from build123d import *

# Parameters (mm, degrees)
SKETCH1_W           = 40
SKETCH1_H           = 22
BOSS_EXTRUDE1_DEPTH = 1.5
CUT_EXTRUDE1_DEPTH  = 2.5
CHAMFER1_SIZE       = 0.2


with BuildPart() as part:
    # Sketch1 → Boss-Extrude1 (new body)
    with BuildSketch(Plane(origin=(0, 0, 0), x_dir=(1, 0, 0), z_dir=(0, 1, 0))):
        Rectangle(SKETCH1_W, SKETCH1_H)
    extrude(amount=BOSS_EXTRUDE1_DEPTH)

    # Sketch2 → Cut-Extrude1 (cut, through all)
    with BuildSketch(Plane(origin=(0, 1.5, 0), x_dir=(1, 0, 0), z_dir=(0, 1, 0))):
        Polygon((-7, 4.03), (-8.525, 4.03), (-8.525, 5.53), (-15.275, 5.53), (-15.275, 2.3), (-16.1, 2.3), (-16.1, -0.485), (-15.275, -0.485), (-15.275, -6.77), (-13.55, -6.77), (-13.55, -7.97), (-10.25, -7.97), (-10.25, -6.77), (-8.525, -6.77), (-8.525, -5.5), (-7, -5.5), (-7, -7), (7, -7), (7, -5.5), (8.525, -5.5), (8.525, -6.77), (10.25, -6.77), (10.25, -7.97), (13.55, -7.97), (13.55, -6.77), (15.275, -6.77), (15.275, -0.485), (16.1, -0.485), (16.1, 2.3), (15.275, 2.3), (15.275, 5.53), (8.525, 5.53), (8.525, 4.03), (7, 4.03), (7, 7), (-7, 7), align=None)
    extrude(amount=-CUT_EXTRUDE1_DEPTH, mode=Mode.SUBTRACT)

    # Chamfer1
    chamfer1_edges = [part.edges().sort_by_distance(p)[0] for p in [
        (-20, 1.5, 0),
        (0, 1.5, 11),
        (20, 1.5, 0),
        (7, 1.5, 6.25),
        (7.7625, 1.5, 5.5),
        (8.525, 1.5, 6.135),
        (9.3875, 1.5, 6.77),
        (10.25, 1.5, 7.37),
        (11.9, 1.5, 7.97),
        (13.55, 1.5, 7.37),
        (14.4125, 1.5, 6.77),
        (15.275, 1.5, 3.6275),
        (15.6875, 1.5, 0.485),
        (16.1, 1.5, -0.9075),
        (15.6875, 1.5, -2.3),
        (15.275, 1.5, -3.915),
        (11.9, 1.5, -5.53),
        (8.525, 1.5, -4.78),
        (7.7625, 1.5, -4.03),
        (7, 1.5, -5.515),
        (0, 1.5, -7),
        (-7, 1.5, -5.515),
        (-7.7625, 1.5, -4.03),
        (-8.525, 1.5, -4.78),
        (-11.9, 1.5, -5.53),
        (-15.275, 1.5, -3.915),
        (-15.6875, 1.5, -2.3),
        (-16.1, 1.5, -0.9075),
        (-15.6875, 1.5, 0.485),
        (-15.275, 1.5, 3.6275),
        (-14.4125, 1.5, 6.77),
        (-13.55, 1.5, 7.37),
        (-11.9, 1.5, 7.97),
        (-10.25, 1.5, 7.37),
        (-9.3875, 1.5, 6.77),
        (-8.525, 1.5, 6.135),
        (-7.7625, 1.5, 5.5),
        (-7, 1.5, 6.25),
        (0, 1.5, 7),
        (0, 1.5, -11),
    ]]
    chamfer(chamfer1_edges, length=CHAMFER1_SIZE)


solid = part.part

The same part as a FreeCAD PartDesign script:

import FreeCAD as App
import Part
import Sketcher
Q = App.Units.Quantity


def edges_at(feature, points):
    """Names of the edges that pass closest to the given points."""
    edges = feature.Shape.Edges
    near = lambda p: min(range(len(edges)), key=lambda i: edges[i].distToShape(Part.Vertex(*p))[0])
    return sorted({f"Edge{near(p) + 1}" for p in points})

doc = App.newDocument("Part")
body = doc.addObject("PartDesign::Body", "Body")

sketch1 = doc.addObject("Sketcher::SketchObject", "Sketch")
body.addObject(sketch1)
sketch1.AttachmentSupport = (doc.XZ_Plane, [""])
sketch1.MapMode = "FlatFace"
sketch1.addGeometry([
    Part.LineSegment(App.Vector(-20, -11, 0), App.Vector(-20, 11, 0)),
    Part.LineSegment(App.Vector(-20, 11, 0), App.Vector(20, 11, 0)),
    Part.LineSegment(App.Vector(20, 11, 0), App.Vector(20, -11, 0)),
    Part.LineSegment(App.Vector(20, -11, 0), App.Vector(-20, -11, 0)),
], False)
sketch1.addConstraint([
    Sketcher.Constraint("Coincident", 0, 2, 1, 1),
    Sketcher.Constraint("Coincident", 1, 2, 2, 1),
    Sketcher.Constraint("Coincident", 2, 2, 3, 1),
    Sketcher.Constraint("Coincident", 3, 2, 0, 1),
    Sketcher.Constraint("Vertical", 0),
    Sketcher.Constraint("Horizontal", 1),
    Sketcher.Constraint("Vertical", 2),
    Sketcher.Constraint("Horizontal", 3),
    Sketcher.Constraint("Symmetric", 0, 2, 2, 2, -1, 1),
    Sketcher.Constraint("DistanceX", 1, 1, 1, 2, Q("40 mm")),
    Sketcher.Constraint("DistanceY", 0, 1, 0, 2, Q("22 mm")),
])
pad1 = doc.addObject("PartDesign::Pad", "Pad")
body.addObject(pad1)
pad1.Profile = sketch1
pad1.Length = 1.5
pad1.Reversed = True

sketch2 = doc.addObject("Sketcher::SketchObject", "Sketch001")
body.addObject(sketch2)
sketch2.AttachmentSupport = (doc.XZ_Plane, [""])
sketch2.MapMode = "FlatFace"
sketch2.AttachmentOffset = App.Placement(App.Vector(0, 0, -1.5), App.Rotation())
sketch2.addGeometry([
    Part.LineSegment(App.Vector(-7, -4, 0), App.Vector(-8.5, -4, 0)),
    Part.LineSegment(App.Vector(-8.5, -4, 0), App.Vector(-8.5, -5.5, 0)),
    Part.LineSegment(App.Vector(-8.5, -5.5, 0), App.Vector(-15.3, -5.5, 0)),
    Part.LineSegment(App.Vector(-15.3, -5.5, 0), App.Vector(-15.3, -2.3, 0)),
    Part.LineSegment(App.Vector(-15.3, -2.3, 0), App.Vector(-16.1, -2.3, 0)),
    Part.LineSegment(App.Vector(-16.1, -2.3, 0), App.Vector(-16.1, 0.5, 0)),
    Part.LineSegment(App.Vector(-16.1, 0.5, 0), App.Vector(-15.3, 0.5, 0)),
    Part.LineSegment(App.Vector(-15.3, 0.5, 0), App.Vector(-15.3, 6.8, 0)),
    Part.LineSegment(App.Vector(-15.3, 6.8, 0), App.Vector(-13.6, 6.8, 0)),
    Part.LineSegment(App.Vector(-13.6, 6.8, 0), App.Vector(-13.6, 8, 0)),
    Part.LineSegment(App.Vector(-13.6, 8, 0), App.Vector(-10.2, 8, 0)),
    Part.LineSegment(App.Vector(-10.2, 8, 0), App.Vector(-10.2, 6.8, 0)),
    Part.LineSegment(App.Vector(-10.2, 6.8, 0), App.Vector(-8.5, 6.8, 0)),
    Part.LineSegment(App.Vector(-8.5, 6.8, 0), App.Vector(-8.5, 5.5, 0)),
    Part.LineSegment(App.Vector(-8.5, 5.5, 0), App.Vector(-7, 5.5, 0)),
    Part.LineSegment(App.Vector(-7, 5.5, 0), App.Vector(-7, 7, 0)),
    Part.LineSegment(App.Vector(-7, 7, 0), App.Vector(7, 7, 0)),
    Part.LineSegment(App.Vector(7, 7, 0), App.Vector(7, 5.5, 0)),
    Part.LineSegment(App.Vector(7, 5.5, 0), App.Vector(8.5, 5.5, 0)),
    Part.LineSegment(App.Vector(8.5, 5.5, 0), App.Vector(8.5, 6.8, 0)),
    Part.LineSegment(App.Vector(8.5, 6.8, 0), App.Vector(10.2, 6.8, 0)),
    Part.LineSegment(App.Vector(10.2, 6.8, 0), App.Vector(10.2, 8, 0)),
    Part.LineSegment(App.Vector(10.2, 8, 0), App.Vector(13.6, 8, 0)),
    Part.LineSegment(App.Vector(13.6, 8, 0), App.Vector(13.6, 6.8, 0)),
    Part.LineSegment(App.Vector(13.6, 6.8, 0), App.Vector(15.3, 6.8, 0)),
    Part.LineSegment(App.Vector(15.3, 6.8, 0), App.Vector(15.3, 0.5, 0)),
    Part.LineSegment(App.Vector(15.3, 0.5, 0), App.Vector(16.1, 0.5, 0)),
    Part.LineSegment(App.Vector(16.1, 0.5, 0), App.Vector(16.1, -2.3, 0)),
    Part.LineSegment(App.Vector(16.1, -2.3, 0), App.Vector(15.3, -2.3, 0)),
    Part.LineSegment(App.Vector(15.3, -2.3, 0), App.Vector(15.3, -5.5, 0)),
    Part.LineSegment(App.Vector(15.3, -5.5, 0), App.Vector(8.5, -5.5, 0)),
    Part.LineSegment(App.Vector(8.5, -5.5, 0), App.Vector(8.5, -4, 0)),
    Part.LineSegment(App.Vector(8.5, -4, 0), App.Vector(7, -4, 0)),
    Part.LineSegment(App.Vector(7, -4, 0), App.Vector(7, -7, 0)),
    Part.LineSegment(App.Vector(7, -7, 0), App.Vector(-7, -7, 0)),
    Part.LineSegment(App.Vector(-7, -7, 0), App.Vector(-7, -4, 0)),
], False)
sketch2.addConstraint([
    Sketcher.Constraint("Coincident", 0, 2, 1, 1),
    Sketcher.Constraint("Coincident", 1, 2, 2, 1),
    Sketcher.Constraint("Coincident", 2, 2, 3, 1),
    Sketcher.Constraint("Coincident", 3, 2, 4, 1),
    Sketcher.Constraint("Coincident", 4, 2, 5, 1),
    Sketcher.Constraint("Coincident", 5, 2, 6, 1),
    Sketcher.Constraint("Coincident", 6, 2, 7, 1),
    Sketcher.Constraint("Coincident", 7, 2, 8, 1),
    Sketcher.Constraint("Coincident", 8, 2, 9, 1),
    Sketcher.Constraint("Coincident", 9, 2, 10, 1),
    Sketcher.Constraint("Coincident", 10, 2, 11, 1),
    Sketcher.Constraint("Coincident", 11, 2, 12, 1),
    Sketcher.Constraint("Coincident", 12, 2, 13, 1),
    Sketcher.Constraint("Coincident", 13, 2, 14, 1),
    Sketcher.Constraint("Coincident", 14, 2, 15, 1),
    Sketcher.Constraint("Coincident", 15, 2, 16, 1),
    Sketcher.Constraint("Coincident", 16, 2, 17, 1),
    Sketcher.Constraint("Coincident", 17, 2, 18, 1),
    Sketcher.Constraint("Coincident", 18, 2, 19, 1),
    Sketcher.Constraint("Coincident", 19, 2, 20, 1),
    Sketcher.Constraint("Coincident", 20, 2, 21, 1),
    Sketcher.Constraint("Coincident", 21, 2, 22, 1),
    Sketcher.Constraint("Coincident", 22, 2, 23, 1),
    Sketcher.Constraint("Coincident", 23, 2, 24, 1),
    Sketcher.Constraint("Coincident", 24, 2, 25, 1),
    Sketcher.Constraint("Coincident", 25, 2, 26, 1),
    Sketcher.Constraint("Coincident", 26, 2, 27, 1),
    Sketcher.Constraint("Coincident", 27, 2, 28, 1),
    Sketcher.Constraint("Coincident", 28, 2, 29, 1),
    Sketcher.Constraint("Coincident", 29, 2, 30, 1),
    Sketcher.Constraint("Coincident", 30, 2, 31, 1),
    Sketcher.Constraint("Coincident", 31, 2, 32, 1),
    Sketcher.Constraint("Coincident", 32, 2, 33, 1),
    Sketcher.Constraint("Coincident", 33, 2, 34, 1),
    Sketcher.Constraint("Coincident", 34, 2, 35, 1),
    Sketcher.Constraint("Coincident", 35, 2, 0, 1),
    Sketcher.Constraint("Horizontal", 0),
    Sketcher.Constraint("Vertical", 1),
    Sketcher.Constraint("Horizontal", 2),
    Sketcher.Constraint("Vertical", 3),
    Sketcher.Constraint("Horizontal", 4),
    Sketcher.Constraint("Vertical", 5),
    Sketcher.Constraint("Horizontal", 6),
    Sketcher.Constraint("Vertical", 7),
    Sketcher.Constraint("Horizontal", 8),
    Sketcher.Constraint("Vertical", 9),
    Sketcher.Constraint("Horizontal", 10),
    Sketcher.Constraint("Vertical", 11),
    Sketcher.Constraint("Horizontal", 12),
    Sketcher.Constraint("Vertical", 13),
    Sketcher.Constraint("Horizontal", 14),
    Sketcher.Constraint("Vertical", 15),
    Sketcher.Constraint("Horizontal", 16),
    Sketcher.Constraint("Vertical", 17),
    Sketcher.Constraint("Horizontal", 18),
    Sketcher.Constraint("Vertical", 19),
    Sketcher.Constraint("Horizontal", 20),
    Sketcher.Constraint("Vertical", 21),
    Sketcher.Constraint("Horizontal", 22),
    Sketcher.Constraint("Vertical", 23),
    Sketcher.Constraint("Horizontal", 24),
    Sketcher.Constraint("Vertical", 25),
    Sketcher.Constraint("Horizontal", 26),
    Sketcher.Constraint("Vertical", 27),
    Sketcher.Constraint("Horizontal", 28),
    Sketcher.Constraint("Vertical", 29),
    Sketcher.Constraint("Horizontal", 30),
    Sketcher.Constraint("Vertical", 31),
    Sketcher.Constraint("Horizontal", 32),
    Sketcher.Constraint("Vertical", 33),
    Sketcher.Constraint("Horizontal", 34),
    Sketcher.Constraint("Vertical", 35),
    Sketcher.Constraint("Symmetric", 15, 2, 33, 2, -1, 1),
    Sketcher.Constraint("Symmetric", 14, 2, 17, 2, -2),
    Sketcher.Constraint("Symmetric", 12, 2, 19, 2, -2),
    Sketcher.Constraint("Symmetric", 10, 2, 21, 2, -2),
    Sketcher.Constraint("Symmetric", 8, 2, 23, 2, -2),
    Sketcher.Constraint("Symmetric", 6, 2, 25, 2, -2),
    Sketcher.Constraint("Symmetric", 4, 2, 27, 2, -2),
    Sketcher.Constraint("Symmetric", 2, 2, 29, 2, -2),
    Sketcher.Constraint("Symmetric", 0, 2, 31, 2, -2),
    Sketcher.Constraint("Horizontal", 8, 2, 11, 2),
    Sketcher.Constraint("Vertical", 3, 2, 6, 2),
    Sketcher.Constraint("Vertical", 1, 2, 12, 2),
    Sketcher.Constraint("Vertical", 15, 2, 34, 2),
    Sketcher.Constraint("Equal", 8, 12),
    Sketcher.Constraint("Equal", 1, 15),
    Sketcher.Constraint("DistanceX", 16, 1, 16, 2, Q("14 mm")),
    Sketcher.Constraint("DistanceX", 10, 1, 10, 2, Q("3.3 mm")),
    Sketcher.Constraint("DistanceY", 1, 2, 1, 1, Q("1.5 mm")),
    Sketcher.Constraint("DistanceY", 9, 1, 9, 2, Q("1.2 mm")),
    Sketcher.Constraint("DistanceY", -1, 1, 15, 2, Q("7 mm")),
    Sketcher.Constraint("DistanceX", 2, 2, 2, 1, Q("6.75 mm")),
    Sketcher.Constraint("DistanceY", 3, 1, 3, 2, Q("3.23 mm")),
    Sketcher.Constraint("DistanceY", 13, 2, 13, 1, Q("1.27 mm")),
    Sketcher.Constraint("DistanceY", 33, 2, 33, 1, Q("2.97 mm")),
    Sketcher.Constraint("DistanceX", 4, 2, -1, 1, Q("16.1 mm")),
    Sketcher.Constraint("DistanceX", 0, 2, 0, 1, Q("1.525 mm")),
    Sketcher.Constraint("DistanceY", 5, 1, 5, 2, Q("2.785 mm")),
])
pocket1 = doc.addObject("PartDesign::Pocket", "Pocket")
body.addObject(pocket1)
pocket1.Profile = sketch2
pocket1.Type = "ThroughAll"
pocket1.Reversed = True
doc.recompute()

chamfer = doc.addObject("PartDesign::Chamfer", "Chamfer")
body.addObject(chamfer)
chamfer.Base = (pocket1, edges_at(pocket1, [
    (-20, 1.5, 0),
    (0, 1.5, 11),
    (20, 1.5, 0),
    (7, 1.5, 6.25),
    (7.763, 1.5, 5.5),
    (8.525, 1.5, 6.135),
    (9.387, 1.5, 6.77),
    (10.25, 1.5, 7.37),
    (11.9, 1.5, 7.97),
    (13.55, 1.5, 7.37),
    (14.412, 1.5, 6.77),
    (15.275, 1.5, 3.627),
    (15.688, 1.5, 0.485),
    (16.1, 1.5, -0.907),
    (15.688, 1.5, -2.3),
    (15.275, 1.5, -3.915),
    (11.9, 1.5, -5.53),
    (8.525, 1.5, -4.78),
    (7.763, 1.5, -4.03),
    (7, 1.5, -5.515),
    (0, 1.5, -7),
    (-7, 1.5, -5.515),
    (-7.763, 1.5, -4.03),
    (-8.525, 1.5, -4.78),
    (-11.9, 1.5, -5.53),
    (-15.275, 1.5, -3.915),
    (-15.688, 1.5, -2.3),
    (-16.1, 1.5, -0.907),
    (-15.688, 1.5, 0.485),
    (-15.275, 1.5, 3.627),
    (-14.412, 1.5, 6.77),
    (-13.55, 1.5, 7.37),
    (-11.9, 1.5, 7.97),
    (-10.25, 1.5, 7.37),
    (-9.387, 1.5, 6.77),
    (-8.525, 1.5, 6.135),
    (-7.763, 1.5, 5.5),
    (-7, 1.5, 6.25),
    (0, 1.5, 7),
    (0, 1.5, -11),
]))
chamfer.Size = 0.2

doc.recompute()
